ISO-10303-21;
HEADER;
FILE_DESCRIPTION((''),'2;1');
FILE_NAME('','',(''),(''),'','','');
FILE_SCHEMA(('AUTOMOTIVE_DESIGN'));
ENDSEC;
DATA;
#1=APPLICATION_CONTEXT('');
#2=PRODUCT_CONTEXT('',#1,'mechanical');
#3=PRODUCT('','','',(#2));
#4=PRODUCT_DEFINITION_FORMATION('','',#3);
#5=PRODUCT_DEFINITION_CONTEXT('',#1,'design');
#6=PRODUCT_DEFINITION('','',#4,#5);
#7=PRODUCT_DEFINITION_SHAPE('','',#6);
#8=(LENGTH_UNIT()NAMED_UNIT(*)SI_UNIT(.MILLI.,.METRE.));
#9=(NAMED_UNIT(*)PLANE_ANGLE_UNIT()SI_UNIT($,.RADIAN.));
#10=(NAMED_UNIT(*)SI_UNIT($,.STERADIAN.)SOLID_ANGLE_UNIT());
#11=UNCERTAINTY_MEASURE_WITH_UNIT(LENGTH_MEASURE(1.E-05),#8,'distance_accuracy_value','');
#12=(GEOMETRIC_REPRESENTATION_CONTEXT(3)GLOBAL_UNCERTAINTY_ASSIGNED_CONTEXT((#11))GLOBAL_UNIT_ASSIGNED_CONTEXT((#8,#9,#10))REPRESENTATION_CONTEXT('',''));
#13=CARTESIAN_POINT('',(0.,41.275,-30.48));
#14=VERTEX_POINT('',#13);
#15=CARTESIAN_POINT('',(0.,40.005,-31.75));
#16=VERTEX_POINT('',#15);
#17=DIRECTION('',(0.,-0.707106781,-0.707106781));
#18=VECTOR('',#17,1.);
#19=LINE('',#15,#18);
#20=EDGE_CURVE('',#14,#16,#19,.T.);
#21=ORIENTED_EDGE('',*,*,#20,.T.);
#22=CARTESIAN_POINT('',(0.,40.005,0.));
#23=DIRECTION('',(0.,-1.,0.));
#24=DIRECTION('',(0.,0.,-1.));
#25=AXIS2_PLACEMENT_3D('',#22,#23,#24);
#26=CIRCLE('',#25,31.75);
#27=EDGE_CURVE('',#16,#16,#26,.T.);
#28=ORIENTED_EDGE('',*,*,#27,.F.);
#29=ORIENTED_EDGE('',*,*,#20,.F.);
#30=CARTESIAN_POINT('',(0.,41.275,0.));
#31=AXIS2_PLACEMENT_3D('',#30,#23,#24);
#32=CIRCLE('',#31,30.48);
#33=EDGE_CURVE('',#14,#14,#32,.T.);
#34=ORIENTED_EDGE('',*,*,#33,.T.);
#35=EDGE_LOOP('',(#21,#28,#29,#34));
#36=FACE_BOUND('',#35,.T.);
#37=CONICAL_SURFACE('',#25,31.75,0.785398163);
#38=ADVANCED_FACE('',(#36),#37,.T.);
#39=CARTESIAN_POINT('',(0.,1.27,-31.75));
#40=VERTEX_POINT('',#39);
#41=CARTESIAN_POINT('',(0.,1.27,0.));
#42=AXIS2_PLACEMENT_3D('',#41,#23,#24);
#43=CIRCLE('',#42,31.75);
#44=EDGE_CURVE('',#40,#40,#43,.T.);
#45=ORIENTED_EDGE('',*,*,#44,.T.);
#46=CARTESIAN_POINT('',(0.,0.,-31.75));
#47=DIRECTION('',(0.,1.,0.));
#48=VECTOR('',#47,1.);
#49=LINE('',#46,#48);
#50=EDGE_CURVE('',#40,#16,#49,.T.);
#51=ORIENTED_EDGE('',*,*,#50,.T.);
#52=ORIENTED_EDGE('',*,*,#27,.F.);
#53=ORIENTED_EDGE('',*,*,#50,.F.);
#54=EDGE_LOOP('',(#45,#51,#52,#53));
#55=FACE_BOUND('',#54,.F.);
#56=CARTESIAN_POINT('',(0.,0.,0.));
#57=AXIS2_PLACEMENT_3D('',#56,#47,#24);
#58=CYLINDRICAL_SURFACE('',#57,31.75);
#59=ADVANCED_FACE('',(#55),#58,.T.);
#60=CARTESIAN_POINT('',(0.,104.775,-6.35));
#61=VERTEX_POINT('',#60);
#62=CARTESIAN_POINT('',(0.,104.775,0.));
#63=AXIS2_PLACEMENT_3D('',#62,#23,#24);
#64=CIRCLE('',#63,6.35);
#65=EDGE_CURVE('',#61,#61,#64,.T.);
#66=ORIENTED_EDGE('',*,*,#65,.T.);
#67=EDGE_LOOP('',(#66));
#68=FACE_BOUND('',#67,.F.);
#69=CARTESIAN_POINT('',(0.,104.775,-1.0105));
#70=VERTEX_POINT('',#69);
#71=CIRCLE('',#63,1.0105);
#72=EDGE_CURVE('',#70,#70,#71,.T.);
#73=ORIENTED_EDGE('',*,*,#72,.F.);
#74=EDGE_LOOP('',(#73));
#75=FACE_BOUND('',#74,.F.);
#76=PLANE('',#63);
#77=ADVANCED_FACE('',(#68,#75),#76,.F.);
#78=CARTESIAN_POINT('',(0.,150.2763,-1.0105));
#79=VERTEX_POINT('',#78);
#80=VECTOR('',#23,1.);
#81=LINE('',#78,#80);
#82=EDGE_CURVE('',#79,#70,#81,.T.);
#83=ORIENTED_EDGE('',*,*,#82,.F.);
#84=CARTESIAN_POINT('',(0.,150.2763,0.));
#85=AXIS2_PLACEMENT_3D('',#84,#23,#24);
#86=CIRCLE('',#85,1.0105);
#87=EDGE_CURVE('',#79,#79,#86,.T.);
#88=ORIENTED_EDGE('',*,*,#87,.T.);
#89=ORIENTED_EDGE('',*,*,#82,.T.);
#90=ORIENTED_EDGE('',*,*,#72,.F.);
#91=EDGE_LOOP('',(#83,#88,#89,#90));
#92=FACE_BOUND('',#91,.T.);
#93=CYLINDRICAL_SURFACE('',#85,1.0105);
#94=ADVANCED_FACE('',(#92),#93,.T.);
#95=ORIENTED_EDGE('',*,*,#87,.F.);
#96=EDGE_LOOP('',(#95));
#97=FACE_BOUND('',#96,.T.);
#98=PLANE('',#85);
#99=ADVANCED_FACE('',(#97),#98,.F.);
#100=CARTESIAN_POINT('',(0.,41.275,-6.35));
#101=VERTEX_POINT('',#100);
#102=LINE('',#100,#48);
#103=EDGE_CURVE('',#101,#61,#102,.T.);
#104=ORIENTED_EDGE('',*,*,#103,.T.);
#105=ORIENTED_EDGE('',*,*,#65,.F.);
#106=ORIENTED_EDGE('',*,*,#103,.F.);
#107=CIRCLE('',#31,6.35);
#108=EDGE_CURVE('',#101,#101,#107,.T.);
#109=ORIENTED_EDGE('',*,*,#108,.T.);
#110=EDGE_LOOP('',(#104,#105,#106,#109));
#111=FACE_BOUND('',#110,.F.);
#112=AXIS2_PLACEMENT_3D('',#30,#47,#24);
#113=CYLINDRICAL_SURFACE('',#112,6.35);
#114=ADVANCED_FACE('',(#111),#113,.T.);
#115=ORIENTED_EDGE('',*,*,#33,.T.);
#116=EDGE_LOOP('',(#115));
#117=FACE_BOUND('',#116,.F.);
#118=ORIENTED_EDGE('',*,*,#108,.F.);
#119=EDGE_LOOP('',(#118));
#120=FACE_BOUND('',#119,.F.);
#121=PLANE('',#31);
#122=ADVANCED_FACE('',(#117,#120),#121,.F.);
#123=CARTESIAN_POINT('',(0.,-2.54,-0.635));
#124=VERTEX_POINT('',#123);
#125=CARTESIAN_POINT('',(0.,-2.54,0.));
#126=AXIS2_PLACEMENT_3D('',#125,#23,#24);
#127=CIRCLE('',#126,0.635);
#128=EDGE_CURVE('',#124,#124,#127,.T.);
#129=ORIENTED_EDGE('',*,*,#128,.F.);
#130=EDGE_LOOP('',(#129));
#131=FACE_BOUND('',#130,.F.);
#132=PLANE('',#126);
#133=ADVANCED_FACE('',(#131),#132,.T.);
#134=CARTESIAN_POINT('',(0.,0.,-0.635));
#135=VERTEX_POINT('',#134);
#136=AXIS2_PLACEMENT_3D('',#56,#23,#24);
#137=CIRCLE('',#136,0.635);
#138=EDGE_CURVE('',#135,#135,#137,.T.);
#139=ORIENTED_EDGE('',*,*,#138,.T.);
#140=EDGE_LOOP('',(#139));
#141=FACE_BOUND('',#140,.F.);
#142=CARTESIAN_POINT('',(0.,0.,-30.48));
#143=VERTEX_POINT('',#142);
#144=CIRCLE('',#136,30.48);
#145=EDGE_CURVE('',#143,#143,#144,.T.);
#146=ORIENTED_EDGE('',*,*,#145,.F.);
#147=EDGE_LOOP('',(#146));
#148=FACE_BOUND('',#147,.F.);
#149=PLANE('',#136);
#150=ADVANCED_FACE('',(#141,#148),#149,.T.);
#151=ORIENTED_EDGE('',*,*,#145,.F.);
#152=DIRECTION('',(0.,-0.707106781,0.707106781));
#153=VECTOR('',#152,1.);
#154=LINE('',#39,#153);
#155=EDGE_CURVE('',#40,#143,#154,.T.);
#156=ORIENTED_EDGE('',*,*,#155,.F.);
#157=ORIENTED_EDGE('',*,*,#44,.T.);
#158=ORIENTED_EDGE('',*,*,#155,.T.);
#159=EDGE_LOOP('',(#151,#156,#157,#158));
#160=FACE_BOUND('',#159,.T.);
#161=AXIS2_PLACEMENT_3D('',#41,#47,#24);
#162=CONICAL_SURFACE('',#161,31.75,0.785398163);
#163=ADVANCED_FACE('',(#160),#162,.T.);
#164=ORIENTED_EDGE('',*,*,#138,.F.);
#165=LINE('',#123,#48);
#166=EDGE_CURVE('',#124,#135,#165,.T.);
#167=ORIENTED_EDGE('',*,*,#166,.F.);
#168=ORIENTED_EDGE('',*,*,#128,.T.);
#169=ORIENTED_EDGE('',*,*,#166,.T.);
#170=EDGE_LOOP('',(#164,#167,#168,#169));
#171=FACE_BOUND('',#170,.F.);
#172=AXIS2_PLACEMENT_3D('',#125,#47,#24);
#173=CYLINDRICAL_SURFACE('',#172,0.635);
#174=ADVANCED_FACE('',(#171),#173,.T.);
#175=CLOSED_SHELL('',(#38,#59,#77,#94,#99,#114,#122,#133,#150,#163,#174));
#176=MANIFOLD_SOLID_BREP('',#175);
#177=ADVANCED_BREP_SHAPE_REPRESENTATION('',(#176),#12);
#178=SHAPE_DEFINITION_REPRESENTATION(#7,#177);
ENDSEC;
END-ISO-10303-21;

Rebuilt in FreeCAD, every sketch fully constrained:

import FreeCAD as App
import Part
import Sketcher
Q = App.Units.Quantity


def edges_at(feature, points):
    """Names of the edges that pass closest to the given points."""
    edges = feature.Shape.Edges
    near = lambda p: min(range(len(edges)), key=lambda i: edges[i].distToShape(Part.Vertex(*p))[0])
    return sorted({f"Edge{near(p) + 1}" for p in points})


def add_polygon(sketch, points):
    """Adds a closed chain of lines whose ends are joined by coincident constraints."""
    first, n = sketch.GeometryCount, len(points)
    for a, b in zip(points, points[1:] + points[:1]):
        sketch.addGeometry(Part.LineSegment(App.Vector(*a, 0), App.Vector(*b, 0)), False)
    for i in range(n):
        sketch.addConstraint(Sketcher.Constraint("Coincident", first + i, 2, first + (i + 1) % n, 1))

doc = App.newDocument("Part")
body = doc.addObject("PartDesign::Body", "Body")

# Sketch on YZ plane
sketch1 = doc.addObject("Sketcher::SketchObject", "Sketch")
body.addObject(sketch1)
sketch1.AttachmentSupport = (doc.YZ_Plane, [""])
sketch1.MapMode = "FlatFace"
add_polygon(sketch1, [(-2.54, -0.635), (0, -0.635), (0, -31.75), (41.275, -31.75), (41.275, -6.35), (104.775, -6.35), (104.775, -1.0105), (150.2763, -1.0105), (150.2763, 0), (-2.54, 0)])  # lines 0-9
sketch1.addConstraint([
    Sketcher.Constraint("Horizontal", 0),
    Sketcher.Constraint("Vertical", 1),
    Sketcher.Constraint("Horizontal", 2),
    Sketcher.Constraint("Vertical", 3),
    Sketcher.Constraint("Horizontal", 4),
    Sketcher.Constraint("Vertical", 5),
    Sketcher.Constraint("Horizontal", 6),
    Sketcher.Constraint("Vertical", 7),
    Sketcher.Constraint("Horizontal", 8),
    Sketcher.Constraint("Vertical", 9),
    Sketcher.Constraint("PointOnObject", 0, 2, -2),
    Sketcher.Constraint("PointOnObject", 7, 2, -1),
    Sketcher.Constraint("DistanceX", 0, 1, 0, 2, Q("0.1 in")),
    Sketcher.Constraint("DistanceX", 4, 1, 4, 2, Q("2.5 in")),
    Sketcher.Constraint("DistanceX", 2, 1, 2, 2, Q("1.625 in")),
    Sketcher.Constraint("DistanceY", 3, 1, 3, 2, Q("1 in")),
    Sketcher.Constraint("DistanceY", 9, 2, 9, 1, Q("0.025 in")),
    Sketcher.Constraint("DistanceY", 1, 2, -1, 1, Q("1.25 in")),
    Sketcher.Constraint("DistanceX", 6, 1, 6, 2, Q("1.7914 in")),
    Sketcher.Constraint("DistanceY", 5, 1, 5, 2, Q("5.3395 mm")),
])
revolution = doc.addObject("PartDesign::Revolution", "Revolution")
body.addObject(revolution)
revolution.Profile = sketch1
revolution.ReferenceAxis = (sketch1, ["H_Axis"])
revolution.Angle = 360
doc.recompute()

chamfer = doc.addObject("PartDesign::Chamfer", "Chamfer")
body.addObject(chamfer)
chamfer.Base = (revolution, edges_at(revolution, [(0, 41.275, 31.75), (0, 0, 31.75)]))
chamfer.Size = Q("0.05 in")

doc.recompute()
